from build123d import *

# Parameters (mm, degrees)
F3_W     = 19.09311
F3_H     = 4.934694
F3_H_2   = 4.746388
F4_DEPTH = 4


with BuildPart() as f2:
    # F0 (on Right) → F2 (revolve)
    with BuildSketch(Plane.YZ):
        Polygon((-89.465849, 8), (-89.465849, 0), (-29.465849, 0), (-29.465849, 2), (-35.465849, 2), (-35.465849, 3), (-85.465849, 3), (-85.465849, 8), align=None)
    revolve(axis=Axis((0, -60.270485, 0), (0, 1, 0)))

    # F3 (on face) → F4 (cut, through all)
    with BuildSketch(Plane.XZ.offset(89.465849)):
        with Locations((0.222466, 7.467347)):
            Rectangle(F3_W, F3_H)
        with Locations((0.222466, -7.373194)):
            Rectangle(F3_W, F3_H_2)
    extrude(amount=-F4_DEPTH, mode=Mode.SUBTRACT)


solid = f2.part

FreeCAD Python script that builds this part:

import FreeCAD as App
import Part
import Sketcher
from FreeCAD import Vector
Q = App.Units.Quantity

doc = App.newDocument("Part")
body = doc.addObject("PartDesign::Body", "Body")

sketch1 = doc.addObject("Sketcher::SketchObject", "Sketch")
body.addObject(sketch1)
sketch1.AttachmentSupport = (doc.YZ_Plane, [""])
sketch1.MapMode = "FlatFace"
sketch1.addGeometry([
    Part.LineSegment(Vector(-89.465849, 8, 0), Vector(-89.465849, 0, 0)),
    Part.LineSegment(Vector(-89.465849, 0, 0), Vector(-29.465849, 0, 0)),
    Part.LineSegment(Vector(-29.465849, 0, 0), Vector(-29.465849, 2, 0)),
    Part.LineSegment(Vector(-29.465849, 2, 0), Vector(-35.465849, 2, 0)),
    Part.LineSegment(Vector(-35.465849, 2, 0), Vector(-35.465849, 3, 0)),
    Part.LineSegment(Vector(-35.465849, 3, 0), Vector(-85.465849, 3, 0)),
    Part.LineSegment(Vector(-85.465849, 3, 0), Vector(-85.465849, 8, 0)),
    Part.LineSegment(Vector(-85.465849, 8, 0), Vector(-89.465849, 8, 0)),
], False)
sketch1.addConstraint([
    Sketcher.Constraint("Coincident", 0, 2, 1, 1),
    Sketcher.Constraint("Coincident", 1, 2, 2, 1),
    Sketcher.Constraint("Coincident", 2, 2, 3, 1),
    Sketcher.Constraint("Coincident", 3, 2, 4, 1),
    Sketcher.Constraint("Coincident", 4, 2, 5, 1),
    Sketcher.Constraint("Coincident", 5, 2, 6, 1),
    Sketcher.Constraint("Coincident", 6, 2, 7, 1),
    Sketcher.Constraint("Coincident", 7, 2, 0, 1),
    Sketcher.Constraint("Vertical", 0),
    Sketcher.Constraint("Horizontal", 1),
    Sketcher.Constraint("Vertical", 2),
    Sketcher.Constraint("Horizontal", 3),
    Sketcher.Constraint("Vertical", 4),
    Sketcher.Constraint("Horizontal", 5),
    Sketcher.Constraint("Vertical", 6),
    Sketcher.Constraint("Horizontal", 7),
    Sketcher.Constraint("PointOnObject", 0, 2, -1),
    Sketcher.Constraint("DistanceX", 1, 1, 1, 2, Q("60 mm")),
    Sketcher.Constraint("DistanceX", 3, 2, 3, 1, Q("6 mm")),
    Sketcher.Constraint("DistanceX", 5, 2, 5, 1, Q("50 mm")),
    Sketcher.Constraint("DistanceY", 0, 2, 0, 1, Q("8 mm")),
    Sketcher.Constraint("DistanceY", 2, 1, 2, 2, Q("2 mm")),
    Sketcher.Constraint("DistanceY", 4, 1, 4, 2, Q("1 mm")),
    Sketcher.Constraint("DistanceX", 0, 2, -1, 1, Q("89.465849 mm")),
])
revolution = doc.addObject("PartDesign::Revolution", "Revolution")
body.addObject(revolution)
revolution.Profile = sketch1
revolution.ReferenceAxis = (sketch1, ["H_Axis"])
revolution.Angle = 360

sketch2 = doc.addObject("Sketcher::SketchObject", "Sketch001")
body.addObject(sketch2)
sketch2.AttachmentSupport = (doc.XZ_Plane, [""])
sketch2.MapMode = "FlatFace"
sketch2.AttachmentOffset = App.Placement(Vector(0, 0, 89.465849), App.Rotation())
sketch2.addGeometry([
    Part.LineSegment(Vector(-9.324089, 9.934694, 0), Vector(-9.324089, 5, 0)),
    Part.LineSegment(Vector(-9.324089, 5, 0), Vector(9.769021, 5, 0)),
    Part.LineSegment(Vector(9.769021, 5, 0), Vector(9.769021, 9.934694, 0)),
    Part.LineSegment(Vector(9.769021, 9.934694, 0), Vector(-9.324089, 9.934694, 0)),
    Part.LineSegment(Vector(-9.324089, -5, 0), Vector(-9.324089, -9.746388, 0)),
    Part.LineSegment(Vector(-9.324089, -9.746388, 0), Vector(9.769021, -9.746388, 0)),
    Part.LineSegment(Vector(9.769021, -9.746388, 0), Vector(9.769021, -5, 0)),
    Part.LineSegment(Vector(9.769021, -5, 0), Vector(-9.324089, -5, 0)),
], False)
sketch2.addConstraint([
    Sketcher.Constraint("Coincident", 0, 2, 1, 1),
    Sketcher.Constraint("Coincident", 1, 2, 2, 1),
    Sketcher.Constraint("Coincident", 2, 2, 3, 1),
    Sketcher.Constraint("Coincident", 3, 2, 0, 1),
    Sketcher.Constraint("Coincident", 4, 2, 5, 1),
    Sketcher.Constraint("Coincident", 5, 2, 6, 1),
    Sketcher.Constraint("Coincident", 6, 2, 7, 1),
    Sketcher.Constraint("Coincident", 7, 2, 4, 1),
    Sketcher.Constraint("Vertical", 0),
    Sketcher.Constraint("Horizontal", 1),
    Sketcher.Constraint("Vertical", 2),
    Sketcher.Constraint("Horizontal", 3),
    Sketcher.Constraint("Vertical", 4),
    Sketcher.Constraint("Horizontal", 5),
    Sketcher.Constraint("Vertical", 6),
    Sketcher.Constraint("Horizontal", 7),
    Sketcher.Constraint("Symmetric", 1, 2, 6, 2, -1),
    Sketcher.Constraint("Vertical", 3, 2, 4, 2),
    Sketcher.Constraint("DistanceY", -1, 1, 0, 2, Q("5 mm")),
    Sketcher.Constraint("DistanceX", 1, 1, 1, 2, Q("19.09311 mm")),
    Sketcher.Constraint("DistanceY", 0, 2, 0, 1, Q("4.934694 mm")),
    Sketcher.Constraint("DistanceY", 4, 2, 4, 1, Q("4.746388 mm")),
    Sketcher.Constraint("DistanceX", 0, 2, -1, 1, Q("9.324089 mm")),
])
pocket1 = doc.addObject("PartDesign::Pocket", "Pocket")
body.addObject(pocket1)
pocket1.Profile = sketch2
pocket1.Type = "ThroughAll"

doc.recompute()
